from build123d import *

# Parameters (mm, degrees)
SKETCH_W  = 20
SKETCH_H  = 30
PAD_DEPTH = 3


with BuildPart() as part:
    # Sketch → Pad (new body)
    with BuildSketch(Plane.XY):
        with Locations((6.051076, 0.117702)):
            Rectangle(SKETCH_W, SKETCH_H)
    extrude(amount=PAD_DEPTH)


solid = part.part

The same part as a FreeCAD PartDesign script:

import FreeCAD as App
import Part
import Sketcher
from FreeCAD import Vector
Q = App.Units.Quantity


def add_polygon(sketch, points):
    """Adds a closed chain of lines whose ends are joined by coincident constraints."""
    first, n = sketch.GeometryCount, len(points)
    for a, b in zip(points, points[1:] + points[:1]):
        sketch.addGeometry(Part.LineSegment(App.Vector(*a, 0), App.Vector(*b, 0)), False)
    for i in range(n):
        sketch.addConstraint(Sketcher.Constraint("Coincident", first + i, 2, first + (i + 1) % n, 1))

doc = App.newDocument("Part")
params = doc.addObject("Spreadsheet::Sheet", "Params")
for row, (alias, value) in enumerate([
    ("sketch1_width", "20 mm"),
    ("sketch1_height", "30 mm"),
    ("pad1_length", "3 mm"),
], start=1):
    params.set(f"A{row}", alias)
    params.set(f"B{row}", "=" + value)
    params.setAlias(f"B{row}", alias)

body = doc.addObject("PartDesign::Body", "Body")

# Sketch on XY plane
sketch1 = doc.addObject("Sketcher::SketchObject", "Sketch")
body.addObject(sketch1)
sketch1.AttachmentSupport = (doc.XY_Plane, [""])
sketch1.MapMode = "FlatFace"
add_polygon(sketch1, [(-4, 15), (-4, -15), (16, -15), (16, 15)])  # lines 0-3
sketch1.addConstraint(Sketcher.Constraint("Vertical", 0))
sketch1.addConstraint(Sketcher.Constraint("Horizontal", 1))
sketch1.addConstraint(Sketcher.Constraint("Vertical", 2))
sketch1.addConstraint(Sketcher.Constraint("Horizontal", 3))
sketch1.addConstraint(Sketcher.Constraint("DistanceX", 1, 1, 1, 2, Q("20 mm")))
sketch1.addConstraint(Sketcher.Constraint("DistanceY", 0, 2, 0, 1, Q("30 mm")))
sketch1.addConstraint(Sketcher.Constraint("DistanceX", 0, 2, -1, 1, Q("3.948924 mm")))
sketch1.addConstraint(Sketcher.Constraint("DistanceY", 0, 2, -1, 1, Q("14.882298 mm")))
sketch1.setExpression("Constraints[8]", "Params.sketch1_width")
sketch1.setExpression("Constraints[9]", "Params.sketch1_height")
pad1 = doc.addObject("PartDesign::Pad", "Pad")
body.addObject(pad1)
pad1.Profile = sketch1
pad1.setExpression("Length", "Params.pad1_length")

doc.recompute()
